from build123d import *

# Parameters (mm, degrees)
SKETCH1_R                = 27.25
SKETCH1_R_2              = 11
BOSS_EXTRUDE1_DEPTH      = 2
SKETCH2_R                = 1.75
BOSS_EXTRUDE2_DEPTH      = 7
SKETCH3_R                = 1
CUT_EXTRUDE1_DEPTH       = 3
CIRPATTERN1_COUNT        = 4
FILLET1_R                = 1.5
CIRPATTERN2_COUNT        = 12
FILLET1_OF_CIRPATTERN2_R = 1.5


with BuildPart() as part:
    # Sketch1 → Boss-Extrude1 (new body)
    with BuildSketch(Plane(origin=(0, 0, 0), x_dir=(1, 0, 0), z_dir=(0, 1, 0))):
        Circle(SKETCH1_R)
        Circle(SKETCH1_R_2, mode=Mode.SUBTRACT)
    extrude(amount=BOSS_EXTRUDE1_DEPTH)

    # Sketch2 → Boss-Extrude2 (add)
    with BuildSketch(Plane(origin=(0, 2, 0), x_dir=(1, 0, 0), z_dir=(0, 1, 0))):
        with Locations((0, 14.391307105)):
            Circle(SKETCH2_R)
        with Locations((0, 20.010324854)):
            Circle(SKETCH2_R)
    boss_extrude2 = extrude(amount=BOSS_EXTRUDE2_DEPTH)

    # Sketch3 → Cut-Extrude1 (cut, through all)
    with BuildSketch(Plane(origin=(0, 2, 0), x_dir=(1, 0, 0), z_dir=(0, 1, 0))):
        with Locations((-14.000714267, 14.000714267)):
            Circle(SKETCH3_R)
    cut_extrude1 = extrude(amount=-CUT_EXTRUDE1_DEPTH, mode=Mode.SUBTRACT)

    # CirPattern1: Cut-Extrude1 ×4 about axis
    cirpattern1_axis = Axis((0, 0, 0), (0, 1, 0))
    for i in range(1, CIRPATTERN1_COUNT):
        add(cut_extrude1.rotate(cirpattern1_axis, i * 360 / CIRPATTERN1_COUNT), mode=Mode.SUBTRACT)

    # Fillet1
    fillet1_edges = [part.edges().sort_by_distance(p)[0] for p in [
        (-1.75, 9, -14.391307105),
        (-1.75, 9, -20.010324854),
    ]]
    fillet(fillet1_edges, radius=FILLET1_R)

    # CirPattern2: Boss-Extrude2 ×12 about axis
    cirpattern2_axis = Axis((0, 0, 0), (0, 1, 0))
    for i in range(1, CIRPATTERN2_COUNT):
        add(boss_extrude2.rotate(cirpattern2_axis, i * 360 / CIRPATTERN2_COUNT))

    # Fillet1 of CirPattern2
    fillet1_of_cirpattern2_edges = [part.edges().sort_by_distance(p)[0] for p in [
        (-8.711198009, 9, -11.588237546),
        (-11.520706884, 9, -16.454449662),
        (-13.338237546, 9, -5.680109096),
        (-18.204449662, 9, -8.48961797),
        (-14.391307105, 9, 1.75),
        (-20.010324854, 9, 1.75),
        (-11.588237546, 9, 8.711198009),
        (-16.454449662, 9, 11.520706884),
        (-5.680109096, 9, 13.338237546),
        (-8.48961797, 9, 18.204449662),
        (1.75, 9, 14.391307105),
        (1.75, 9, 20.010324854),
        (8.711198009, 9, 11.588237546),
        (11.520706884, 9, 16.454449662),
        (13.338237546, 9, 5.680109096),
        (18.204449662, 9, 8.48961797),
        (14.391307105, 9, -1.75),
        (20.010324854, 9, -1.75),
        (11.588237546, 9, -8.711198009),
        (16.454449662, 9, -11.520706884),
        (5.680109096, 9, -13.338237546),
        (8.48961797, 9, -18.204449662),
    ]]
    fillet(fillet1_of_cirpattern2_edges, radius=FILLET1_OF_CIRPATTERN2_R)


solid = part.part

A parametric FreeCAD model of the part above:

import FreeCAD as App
import Part
import Sketcher


def edges_at(feature, points):
    """Names of the edges that pass closest to the given points."""
    edges = feature.Shape.Edges
    near = lambda p: min(range(len(edges)), key=lambda i: edges[i].distToShape(Part.Vertex(*p))[0])
    return sorted({f"Edge{near(p) + 1}" for p in points})

doc = App.newDocument("Part")
body = doc.addObject("PartDesign::Body", "Body")

sketch1 = doc.addObject("Sketcher::SketchObject", "Sketch")
body.addObject(sketch1)
sketch1.AttachmentSupport = (doc.XZ_Plane, [""])
sketch1.MapMode = "FlatFace"
sketch1.addGeometry([
    Part.Circle(App.Vector(0, 0, 0), App.Vector(0, 0, 1), 27),
    Part.Circle(App.Vector(0, 0, 0), App.Vector(0, 0, 1), 11),
], False)
sketch1.addConstraint([
    Sketcher.Constraint("Coincident", 0, 3, -1, 1),
    Sketcher.Constraint("Coincident", 1, 3, -1, 1),
    Sketcher.Constraint("Diameter", 1, 22.0),
    Sketcher.Constraint("Diameter", 0, 54.5),
])
pad1 = doc.addObject("PartDesign::Pad", "Pad")
body.addObject(pad1)
pad1.Profile = sketch1
pad1.Length = 2
pad1.Reversed = True

sketch2 = doc.addObject("Sketcher::SketchObject", "Sketch001")
body.addObject(sketch2)
sketch2.AttachmentSupport = (doc.XZ_Plane, [""])
sketch2.MapMode = "FlatFace"
sketch2.AttachmentOffset = App.Placement(App.Vector(0, 0, -2), App.Rotation())
sketch2.addGeometry([
    Part.Circle(App.Vector(0, -14.4, 0), App.Vector(0, 0, 1), 1.8),
    Part.Circle(App.Vector(0, -20, 0), App.Vector(0, 0, 1), 1.8),
], False)
sketch2.addConstraint([
    Sketcher.Constraint("Equal", 0, 1),
    Sketcher.Constraint("PointOnObject", 0, 3, -2),
    Sketcher.Constraint("PointOnObject", 1, 3, -2),
    Sketcher.Constraint("Diameter", 0, 3.5),
    Sketcher.Constraint("DistanceY", 0, 3, -1, 1, 14.391307),
    Sketcher.Constraint("DistanceY", 1, 3, -1, 1, 20.010325),
])
pad2 = doc.addObject("PartDesign::Pad", "Pad001")
body.addObject(pad2)
pad2.Profile = sketch2
pad2.Length = 7
pad2.Reversed = True

sketch3 = doc.addObject("Sketcher::SketchObject", "Sketch002")
body.addObject(sketch3)
sketch3.AttachmentSupport = (doc.XZ_Plane, [""])
sketch3.MapMode = "FlatFace"
sketch3.AttachmentOffset = App.Placement(App.Vector(0, 0, -2), App.Rotation())
sketch3.addGeometry(Part.Circle(App.Vector(-14, -14, 0), App.Vector(0, 0, 1), 1), False)
sketch3.addConstraint([
    Sketcher.Constraint("Diameter", 0, 2.0),
    Sketcher.Constraint("DistanceX", 0, 3, -1, 1, 14.000714),
    Sketcher.Constraint("DistanceY", 0, 3, -1, 1, 14.000714),
])
pocket1 = doc.addObject("PartDesign::Pocket", "Pocket")
body.addObject(pocket1)
pocket1.Profile = sketch3
pocket1.Type = "ThroughAll"
pocket1.Reversed = True
doc.recompute()

polarpattern = doc.addObject("PartDesign::PolarPattern", "PolarPattern")
body.addObject(polarpattern)
polarpattern.Originals = [pocket1]
polarpattern.Axis = (doc.Y_Axis, [""])
polarpattern.Angle = 360
polarpattern.Occurrences = 4
body.Tip = polarpattern
doc.recompute()

fillet = doc.addObject("PartDesign::Fillet", "Fillet")
body.addObject(fillet)
fillet.Base = (polarpattern, edges_at(polarpattern, [(-1.75, 9, -14.391), (-1.75, 9, -20.01)]))
fillet.Radius = 1.5
doc.recompute()

polarpattern2 = doc.addObject("PartDesign::PolarPattern", "PolarPattern001")
body.addObject(polarpattern2)
polarpattern2.Originals = [pad2]
polarpattern2.Axis = (doc.Y_Axis, [""])
polarpattern2.Angle = 360
polarpattern2.Occurrences = 12
body.Tip = polarpattern2
doc.recompute()

fillet2 = doc.addObject("PartDesign::Fillet", "Fillet001")
body.addObject(fillet2)
fillet2.Base = (polarpattern2, edges_at(polarpattern2, [
    (-8.711, 9, -11.588),
    (-11.521, 9, -16.454),
    (-13.338, 9, -5.68),
    (-18.204, 9, -8.49),
    (-14.391, 9, 1.75),
    (-20.01, 9, 1.75),
    (-11.588, 9, 8.711),
    (-16.454, 9, 11.521),
    (-5.68, 9, 13.338),
    (-8.49, 9, 18.204),
    (1.75, 9, 14.391),
    (1.75, 9, 20.01),
    (8.711, 9, 11.588),
    (11.521, 9, 16.454),
    (13.338, 9, 5.68),
    (18.204, 9, 8.49),
    (14.391, 9, -1.75),
    (20.01, 9, -1.75),
    (11.588, 9, -8.711),
    (16.454, 9, -11.521),
    (5.68, 9, -13.338),
    (8.49, 9, -18.204),
]))
fillet2.Radius = 1.5

doc.recompute()
